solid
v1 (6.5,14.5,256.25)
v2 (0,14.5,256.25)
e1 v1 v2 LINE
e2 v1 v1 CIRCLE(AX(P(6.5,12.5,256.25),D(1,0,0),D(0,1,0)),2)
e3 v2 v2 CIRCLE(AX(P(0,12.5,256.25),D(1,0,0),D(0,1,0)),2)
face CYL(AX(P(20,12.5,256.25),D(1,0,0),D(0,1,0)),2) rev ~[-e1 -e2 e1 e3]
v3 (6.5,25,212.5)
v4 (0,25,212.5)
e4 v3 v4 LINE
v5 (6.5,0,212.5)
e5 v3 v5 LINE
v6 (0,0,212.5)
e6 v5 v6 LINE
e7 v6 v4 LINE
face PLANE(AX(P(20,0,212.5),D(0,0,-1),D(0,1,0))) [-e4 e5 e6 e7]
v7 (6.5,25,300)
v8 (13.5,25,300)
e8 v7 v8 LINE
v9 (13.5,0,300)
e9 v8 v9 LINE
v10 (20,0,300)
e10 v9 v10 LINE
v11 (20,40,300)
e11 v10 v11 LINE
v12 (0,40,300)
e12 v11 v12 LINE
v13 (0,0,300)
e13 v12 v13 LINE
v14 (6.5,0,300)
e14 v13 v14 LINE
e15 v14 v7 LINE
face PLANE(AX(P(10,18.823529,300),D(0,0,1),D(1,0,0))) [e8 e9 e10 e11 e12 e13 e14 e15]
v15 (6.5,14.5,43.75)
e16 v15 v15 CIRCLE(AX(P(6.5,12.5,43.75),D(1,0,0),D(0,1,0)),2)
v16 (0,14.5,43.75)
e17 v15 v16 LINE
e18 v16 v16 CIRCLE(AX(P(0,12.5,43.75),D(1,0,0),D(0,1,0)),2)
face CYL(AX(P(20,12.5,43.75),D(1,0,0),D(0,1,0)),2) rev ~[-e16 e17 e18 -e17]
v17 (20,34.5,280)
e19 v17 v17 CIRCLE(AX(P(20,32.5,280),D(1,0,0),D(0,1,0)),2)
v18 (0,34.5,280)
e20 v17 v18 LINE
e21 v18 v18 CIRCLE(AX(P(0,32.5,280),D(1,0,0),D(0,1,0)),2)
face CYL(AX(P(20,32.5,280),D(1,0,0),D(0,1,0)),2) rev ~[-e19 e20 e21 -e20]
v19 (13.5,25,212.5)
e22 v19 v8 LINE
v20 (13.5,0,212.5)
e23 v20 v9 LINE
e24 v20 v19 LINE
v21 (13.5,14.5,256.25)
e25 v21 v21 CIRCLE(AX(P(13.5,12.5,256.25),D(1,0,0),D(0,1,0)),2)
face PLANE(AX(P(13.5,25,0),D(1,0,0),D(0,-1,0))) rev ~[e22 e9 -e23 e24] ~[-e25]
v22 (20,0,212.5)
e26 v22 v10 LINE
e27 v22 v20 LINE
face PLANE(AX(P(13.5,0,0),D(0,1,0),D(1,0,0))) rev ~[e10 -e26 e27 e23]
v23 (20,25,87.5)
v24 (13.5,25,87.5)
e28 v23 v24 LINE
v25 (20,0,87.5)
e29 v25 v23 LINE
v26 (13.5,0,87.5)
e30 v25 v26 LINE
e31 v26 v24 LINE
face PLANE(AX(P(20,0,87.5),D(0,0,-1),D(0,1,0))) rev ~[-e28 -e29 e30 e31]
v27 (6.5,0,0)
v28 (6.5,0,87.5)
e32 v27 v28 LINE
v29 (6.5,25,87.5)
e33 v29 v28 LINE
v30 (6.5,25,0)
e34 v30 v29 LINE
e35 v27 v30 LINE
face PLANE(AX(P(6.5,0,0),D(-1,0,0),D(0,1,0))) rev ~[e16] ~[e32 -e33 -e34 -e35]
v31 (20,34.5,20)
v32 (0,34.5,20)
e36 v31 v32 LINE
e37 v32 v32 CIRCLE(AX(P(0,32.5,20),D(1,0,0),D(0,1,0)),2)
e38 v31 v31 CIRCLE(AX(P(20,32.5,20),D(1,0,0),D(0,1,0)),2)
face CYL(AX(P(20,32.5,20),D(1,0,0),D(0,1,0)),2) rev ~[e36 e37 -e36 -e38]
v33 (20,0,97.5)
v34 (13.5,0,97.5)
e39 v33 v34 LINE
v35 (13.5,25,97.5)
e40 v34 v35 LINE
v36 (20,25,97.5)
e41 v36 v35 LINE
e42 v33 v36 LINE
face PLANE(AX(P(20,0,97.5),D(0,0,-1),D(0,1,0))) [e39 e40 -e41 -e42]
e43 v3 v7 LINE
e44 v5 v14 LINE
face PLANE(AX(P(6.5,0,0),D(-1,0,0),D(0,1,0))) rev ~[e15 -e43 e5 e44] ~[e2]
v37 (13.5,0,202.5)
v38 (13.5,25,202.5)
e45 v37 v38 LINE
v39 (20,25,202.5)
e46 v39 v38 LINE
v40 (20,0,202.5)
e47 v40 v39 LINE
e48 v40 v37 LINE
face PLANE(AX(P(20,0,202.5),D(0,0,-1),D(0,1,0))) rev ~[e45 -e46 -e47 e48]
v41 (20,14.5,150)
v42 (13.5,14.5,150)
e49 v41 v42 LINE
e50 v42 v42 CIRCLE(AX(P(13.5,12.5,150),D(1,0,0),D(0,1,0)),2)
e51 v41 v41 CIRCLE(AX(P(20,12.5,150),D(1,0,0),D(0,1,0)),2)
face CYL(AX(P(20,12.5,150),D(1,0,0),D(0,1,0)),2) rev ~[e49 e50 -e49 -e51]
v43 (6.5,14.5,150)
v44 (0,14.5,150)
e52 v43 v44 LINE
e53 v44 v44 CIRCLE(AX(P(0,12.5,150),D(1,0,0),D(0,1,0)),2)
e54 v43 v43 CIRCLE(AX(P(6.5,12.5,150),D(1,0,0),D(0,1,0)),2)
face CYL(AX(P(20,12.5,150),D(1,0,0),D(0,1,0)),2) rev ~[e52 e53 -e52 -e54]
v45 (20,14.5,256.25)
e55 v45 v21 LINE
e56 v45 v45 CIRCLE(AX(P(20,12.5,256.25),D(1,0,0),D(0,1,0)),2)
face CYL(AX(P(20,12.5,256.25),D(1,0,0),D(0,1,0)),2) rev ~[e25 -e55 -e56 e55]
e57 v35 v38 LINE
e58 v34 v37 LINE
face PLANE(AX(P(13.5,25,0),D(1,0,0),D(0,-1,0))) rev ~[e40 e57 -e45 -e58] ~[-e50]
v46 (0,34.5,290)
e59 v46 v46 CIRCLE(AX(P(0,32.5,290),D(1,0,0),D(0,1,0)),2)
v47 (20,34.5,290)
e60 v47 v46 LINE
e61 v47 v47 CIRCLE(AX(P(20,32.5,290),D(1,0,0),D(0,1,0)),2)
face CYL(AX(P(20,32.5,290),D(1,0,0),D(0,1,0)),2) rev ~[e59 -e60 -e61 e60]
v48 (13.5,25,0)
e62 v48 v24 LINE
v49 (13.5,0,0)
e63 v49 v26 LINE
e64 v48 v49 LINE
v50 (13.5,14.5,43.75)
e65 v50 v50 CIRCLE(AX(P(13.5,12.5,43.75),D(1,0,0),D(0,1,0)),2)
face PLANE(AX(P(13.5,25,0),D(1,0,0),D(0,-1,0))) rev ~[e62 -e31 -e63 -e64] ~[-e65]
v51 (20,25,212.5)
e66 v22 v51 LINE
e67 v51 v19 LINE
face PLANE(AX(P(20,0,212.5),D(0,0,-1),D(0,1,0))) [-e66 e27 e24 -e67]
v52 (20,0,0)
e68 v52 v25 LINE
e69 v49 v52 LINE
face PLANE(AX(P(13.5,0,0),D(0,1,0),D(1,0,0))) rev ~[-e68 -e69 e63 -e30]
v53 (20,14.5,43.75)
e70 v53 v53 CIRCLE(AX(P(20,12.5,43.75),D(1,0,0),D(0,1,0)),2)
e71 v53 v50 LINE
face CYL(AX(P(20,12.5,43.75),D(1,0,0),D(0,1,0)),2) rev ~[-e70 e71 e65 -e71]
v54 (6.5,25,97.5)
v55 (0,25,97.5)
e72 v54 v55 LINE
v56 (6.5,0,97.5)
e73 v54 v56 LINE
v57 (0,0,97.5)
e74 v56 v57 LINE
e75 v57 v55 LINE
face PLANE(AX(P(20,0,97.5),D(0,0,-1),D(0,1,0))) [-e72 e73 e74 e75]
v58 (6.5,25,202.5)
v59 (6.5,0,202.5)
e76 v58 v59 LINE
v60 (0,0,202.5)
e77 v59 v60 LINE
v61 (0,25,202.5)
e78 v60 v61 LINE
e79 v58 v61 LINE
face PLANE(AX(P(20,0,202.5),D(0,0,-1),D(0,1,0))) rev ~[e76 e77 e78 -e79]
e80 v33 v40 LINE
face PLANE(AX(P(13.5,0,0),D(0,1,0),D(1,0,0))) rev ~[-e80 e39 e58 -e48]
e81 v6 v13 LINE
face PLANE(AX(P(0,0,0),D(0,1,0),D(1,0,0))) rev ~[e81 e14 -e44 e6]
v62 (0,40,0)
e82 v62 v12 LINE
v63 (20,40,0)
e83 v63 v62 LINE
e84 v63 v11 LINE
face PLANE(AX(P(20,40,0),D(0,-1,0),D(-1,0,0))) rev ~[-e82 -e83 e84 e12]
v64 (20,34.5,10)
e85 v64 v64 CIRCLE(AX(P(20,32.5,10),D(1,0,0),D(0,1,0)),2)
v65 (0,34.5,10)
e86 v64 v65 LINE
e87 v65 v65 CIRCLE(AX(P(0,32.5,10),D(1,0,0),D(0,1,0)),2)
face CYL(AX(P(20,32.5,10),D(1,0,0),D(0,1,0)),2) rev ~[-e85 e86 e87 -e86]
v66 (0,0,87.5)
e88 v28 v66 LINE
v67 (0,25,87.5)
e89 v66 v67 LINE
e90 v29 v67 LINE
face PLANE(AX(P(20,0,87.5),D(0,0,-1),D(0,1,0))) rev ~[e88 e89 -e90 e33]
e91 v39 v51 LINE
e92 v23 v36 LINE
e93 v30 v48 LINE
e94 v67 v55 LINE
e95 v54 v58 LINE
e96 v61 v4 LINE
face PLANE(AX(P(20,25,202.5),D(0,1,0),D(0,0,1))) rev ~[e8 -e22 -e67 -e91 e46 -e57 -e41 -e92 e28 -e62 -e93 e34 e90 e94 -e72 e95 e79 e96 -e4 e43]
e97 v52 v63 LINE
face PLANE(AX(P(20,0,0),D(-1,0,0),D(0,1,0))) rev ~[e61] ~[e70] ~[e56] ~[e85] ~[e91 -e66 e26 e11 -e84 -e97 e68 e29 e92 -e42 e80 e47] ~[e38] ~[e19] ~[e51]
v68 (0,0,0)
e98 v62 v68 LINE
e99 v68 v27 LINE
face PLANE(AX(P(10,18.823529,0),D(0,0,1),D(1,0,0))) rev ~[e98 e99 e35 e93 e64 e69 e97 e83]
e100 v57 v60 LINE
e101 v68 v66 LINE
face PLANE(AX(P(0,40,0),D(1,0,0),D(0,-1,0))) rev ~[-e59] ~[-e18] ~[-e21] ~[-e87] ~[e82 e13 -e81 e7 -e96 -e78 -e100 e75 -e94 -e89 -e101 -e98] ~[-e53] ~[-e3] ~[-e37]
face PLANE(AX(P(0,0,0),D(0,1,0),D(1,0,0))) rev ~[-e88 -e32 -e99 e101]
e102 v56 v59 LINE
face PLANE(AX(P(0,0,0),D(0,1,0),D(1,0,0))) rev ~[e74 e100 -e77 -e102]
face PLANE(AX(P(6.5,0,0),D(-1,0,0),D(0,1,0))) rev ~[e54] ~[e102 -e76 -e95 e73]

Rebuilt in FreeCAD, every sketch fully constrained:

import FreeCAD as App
import Part
import Sketcher
from FreeCAD import Vector
Q = App.Units.Quantity


def add_polygon(sketch, points):
    """Adds a closed chain of lines whose ends are joined by coincident constraints."""
    first, n = sketch.GeometryCount, len(points)
    for a, b in zip(points, points[1:] + points[:1]):
        sketch.addGeometry(Part.LineSegment(App.Vector(*a, 0), App.Vector(*b, 0)), False)
    for i in range(n):
        sketch.addConstraint(Sketcher.Constraint("Coincident", first + i, 2, first + (i + 1) % n, 1))

doc = App.newDocument("Part")
body = doc.addObject("PartDesign::Body", "Body")

# Sketch on XY plane
sketch1 = doc.addObject("Sketcher::SketchObject", "Sketch")
body.addObject(sketch1)
sketch1.AttachmentSupport = (doc.XY_Plane, [""])
sketch1.MapMode = "FlatFace"
add_polygon(sketch1, [(20, 40), (0, 40), (0, 0), (6, 0), (6, 25), (14, 25), (14, 0), (20, 0)])  # lines 0-7
sketch1.addConstraint(Sketcher.Constraint("Horizontal", 0))
sketch1.addConstraint(Sketcher.Constraint("Vertical", 1))
sketch1.addConstraint(Sketcher.Constraint("Horizontal", 2))
sketch1.addConstraint(Sketcher.Constraint("Vertical", 3))
sketch1.addConstraint(Sketcher.Constraint("Horizontal", 4))
sketch1.addConstraint(Sketcher.Constraint("Vertical", 5))
sketch1.addConstraint(Sketcher.Constraint("Horizontal", 6))
sketch1.addConstraint(Sketcher.Constraint("Vertical", 7))
sketch1.addConstraint(Sketcher.Constraint("Coincident", 1, 2, -1, 1))
sketch1.addConstraint(Sketcher.Constraint("PointOnObject", 5, 2, -1))
sketch1.addConstraint(Sketcher.Constraint("Equal", 2, 6))
sketch1.addConstraint(Sketcher.Constraint("DistanceX", 0, 2, 0, 1, Q("20 mm")))
sketch1.addConstraint(Sketcher.Constraint("DistanceX", 4, 1, 4, 2, Q("7 mm")))
sketch1.addConstraint(Sketcher.Constraint("DistanceY", 1, 2, 1, 1, Q("40 mm")))
sketch1.addConstraint(Sketcher.Constraint("DistanceY", 3, 1, 3, 2, Q("25 mm")))
pad1 = doc.addObject("PartDesign::Pad", "Pad")
body.addObject(pad1)
pad1.Profile = sketch1
pad1.Length = 300

# Sketch on YZ plane
sketch2 = doc.addObject("Sketcher::SketchObject", "Sketch001")
body.addObject(sketch2)
sketch2.AttachmentSupport = (doc.YZ_Plane, [""])
sketch2.MapMode = "FlatFace"
sketch2.AttachmentOffset = App.Placement(Vector(0, 0, 20), App.Rotation())
add_polygon(sketch2, [(0, 212.5), (0, 202.5), (25, 202.5), (25, 212.5)])  # lines 0-3
add_polygon(sketch2, [(0, 97.5), (0, 87.5), (25, 87.5), (25, 97.5)])  # lines 4-7
sketch2.addGeometry(Part.Circle(Vector(12.5, 256.2, 0), Vector(0, 0, 1), 2), False)  # 8
sketch2.addGeometry(Part.Circle(Vector(32.5, 280, 0), Vector(0, 0, 1), 2), False)  # 9
sketch2.addGeometry(Part.Circle(Vector(32.5, 290, 0), Vector(0, 0, 1), 2), False)  # 10
sketch2.addGeometry(Part.Circle(Vector(12.5, 150, 0), Vector(0, 0, 1), 2), False)  # 11
sketch2.addGeometry(Part.Circle(Vector(12.5, 43.8, 0), Vector(0, 0, 1), 2), False)  # 12
sketch2.addGeometry(Part.Circle(Vector(32.5, 20, 0), Vector(0, 0, 1), 2), False)  # 13
sketch2.addGeometry(Part.Circle(Vector(32.5, 10, 0), Vector(0, 0, 1), 2), False)  # 14
sketch2.addConstraint(Sketcher.Constraint("Vertical", 0))
sketch2.addConstraint(Sketcher.Constraint("Horizontal", 1))
sketch2.addConstraint(Sketcher.Constraint("Vertical", 2))
sketch2.addConstraint(Sketcher.Constraint("Horizontal", 3))
sketch2.addConstraint(Sketcher.Constraint("Vertical", 4))
sketch2.addConstraint(Sketcher.Constraint("Horizontal", 5))
sketch2.addConstraint(Sketcher.Constraint("Vertical", 6))
sketch2.addConstraint(Sketcher.Constraint("Horizontal", 7))
sketch2.addConstraint(Sketcher.Constraint("Equal", 8, 9))
sketch2.addConstraint(Sketcher.Constraint("Equal", 9, 10))
sketch2.addConstraint(Sketcher.Constraint("Equal", 10, 11))
sketch2.addConstraint(Sketcher.Constraint("Equal", 11, 12))
sketch2.addConstraint(Sketcher.Constraint("Equal", 12, 13))
sketch2.addConstraint(Sketcher.Constraint("Equal", 13, 14))
sketch2.addConstraint(Sketcher.Constraint("PointOnObject", 0, 2, -2))
sketch2.addConstraint(Sketcher.Constraint("PointOnObject", 4, 2, -2))
sketch2.addConstraint(Sketcher.Constraint("Vertical", 9, 3, 10, 3))
sketch2.addConstraint(Sketcher.Constraint("Vertical", 8, 3, 11, 3))
sketch2.addConstraint(Sketcher.Constraint("Vertical", 11, 3, 12, 3))
sketch2.addConstraint(Sketcher.Constraint("Vertical", 10, 3, 13, 3))
sketch2.addConstraint(Sketcher.Constraint("Vertical", 13, 3, 14, 3))
sketch2.addConstraint(Sketcher.Constraint("Vertical", 2, 2, 5, 2))
sketch2.addConstraint(Sketcher.Constraint("Equal", 2, 4))
sketch2.addConstraint(Sketcher.Constraint("Diameter", 8, Q("4 mm")))
sketch2.addConstraint(Sketcher.Constraint("DistanceX", 1, 1, 1, 2, Q("25 mm")))
sketch2.addConstraint(Sketcher.Constraint("DistanceY", 0, 2, 0, 1, Q("10 mm")))
sketch2.addConstraint(Sketcher.Constraint("DistanceY", -1, 1, 9, 3, Q("280 mm")))
sketch2.addConstraint(Sketcher.Constraint("DistanceY", -1, 1, 10, 3, Q("290 mm")))
sketch2.addConstraint(Sketcher.Constraint("DistanceY", -1, 1, 11, 3, Q("150 mm")))
sketch2.addConstraint(Sketcher.Constraint("DistanceY", -1, 1, 13, 3, Q("20 mm")))
sketch2.addConstraint(Sketcher.Constraint("DistanceY", -1, 1, 14, 3, Q("10 mm")))
sketch2.addConstraint(Sketcher.Constraint("DistanceX", 8, 3, 9, 3, Q("20 mm")))
sketch2.addConstraint(Sketcher.Constraint("DistanceY", 4, 2, 0, 2, Q("115 mm")))
sketch2.addConstraint(Sketcher.Constraint("DistanceX", -1, 1, 8, 3, Q("12.5 mm")))
sketch2.addConstraint(Sketcher.Constraint("DistanceY", -1, 1, 0, 2, Q("202.5 mm")))
sketch2.addConstraint(Sketcher.Constraint("DistanceY", 12, 3, 8, 3, Q("212.5 mm")))
sketch2.addConstraint(Sketcher.Constraint("DistanceY", -1, 1, 8, 3, Q("256.25 mm")))
pocket1 = doc.addObject("PartDesign::Pocket", "Pocket")
body.addObject(pocket1)
pocket1.Profile = sketch2
pocket1.Type = "ThroughAll"

doc.recompute()
